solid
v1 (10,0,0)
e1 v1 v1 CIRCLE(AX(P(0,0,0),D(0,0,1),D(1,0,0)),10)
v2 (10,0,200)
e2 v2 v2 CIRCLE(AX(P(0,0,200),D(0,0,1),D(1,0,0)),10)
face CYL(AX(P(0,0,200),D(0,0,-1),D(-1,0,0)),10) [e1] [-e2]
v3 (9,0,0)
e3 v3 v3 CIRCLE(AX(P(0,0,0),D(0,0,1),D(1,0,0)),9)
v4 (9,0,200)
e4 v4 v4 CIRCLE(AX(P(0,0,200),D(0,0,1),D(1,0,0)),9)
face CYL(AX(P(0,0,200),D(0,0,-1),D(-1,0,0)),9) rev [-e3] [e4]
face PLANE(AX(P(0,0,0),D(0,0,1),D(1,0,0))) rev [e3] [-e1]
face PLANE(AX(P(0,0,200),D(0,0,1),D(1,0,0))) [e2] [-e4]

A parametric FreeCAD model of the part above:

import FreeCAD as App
import Part
import Sketcher

V = App.Vector

doc = App.newDocument("Part")
params = doc.addObject("Spreadsheet::Sheet", "Params")
for row, (alias, value) in enumerate([
    ("sketch1_diameter", "20 mm"),
    ("sketch1_diameter2", "18 mm"),
    ("pad1_length", "200 mm"),
], start=1):
    params.set(f"A{row}", alias)
    params.set(f"B{row}", "=" + value)
    params.setAlias(f"B{row}", alias)

body = doc.addObject("PartDesign::Body", "Body")

# Sketch on XY plane
sketch1 = body.newObject("Sketcher::SketchObject", "Sketch")
sketch1.AttachmentSupport = (doc.getObject("XY_Plane"), [""])
sketch1.MapMode = "FlatFace"
sketch1.addGeometry(Part.Circle(V(0, 0, 0), V(0, 0, 1), 10), False)
sketch1.addGeometry(Part.Circle(V(0, 0, 0), V(0, 0, 1), 9), False)
sketch1.addConstraint(Sketcher.Constraint("Coincident", 0, 3, -1, 1))
sketch1.addConstraint(Sketcher.Constraint("Coincident", 1, 3, -1, 1))
sketch1.addConstraint(Sketcher.Constraint("Diameter", 0, 20.0))
sketch1.addConstraint(Sketcher.Constraint("Diameter", 1, 18.0))
sketch1.setExpression("Constraints[2]", "Params.sketch1_diameter")
sketch1.setExpression("Constraints[3]", "Params.sketch1_diameter2")
pad1 = body.newObject("PartDesign::Pad", "Pad")
pad1.Profile = sketch1
pad1.setExpression("Length", "Params.pad1_length")

doc.recompute()
